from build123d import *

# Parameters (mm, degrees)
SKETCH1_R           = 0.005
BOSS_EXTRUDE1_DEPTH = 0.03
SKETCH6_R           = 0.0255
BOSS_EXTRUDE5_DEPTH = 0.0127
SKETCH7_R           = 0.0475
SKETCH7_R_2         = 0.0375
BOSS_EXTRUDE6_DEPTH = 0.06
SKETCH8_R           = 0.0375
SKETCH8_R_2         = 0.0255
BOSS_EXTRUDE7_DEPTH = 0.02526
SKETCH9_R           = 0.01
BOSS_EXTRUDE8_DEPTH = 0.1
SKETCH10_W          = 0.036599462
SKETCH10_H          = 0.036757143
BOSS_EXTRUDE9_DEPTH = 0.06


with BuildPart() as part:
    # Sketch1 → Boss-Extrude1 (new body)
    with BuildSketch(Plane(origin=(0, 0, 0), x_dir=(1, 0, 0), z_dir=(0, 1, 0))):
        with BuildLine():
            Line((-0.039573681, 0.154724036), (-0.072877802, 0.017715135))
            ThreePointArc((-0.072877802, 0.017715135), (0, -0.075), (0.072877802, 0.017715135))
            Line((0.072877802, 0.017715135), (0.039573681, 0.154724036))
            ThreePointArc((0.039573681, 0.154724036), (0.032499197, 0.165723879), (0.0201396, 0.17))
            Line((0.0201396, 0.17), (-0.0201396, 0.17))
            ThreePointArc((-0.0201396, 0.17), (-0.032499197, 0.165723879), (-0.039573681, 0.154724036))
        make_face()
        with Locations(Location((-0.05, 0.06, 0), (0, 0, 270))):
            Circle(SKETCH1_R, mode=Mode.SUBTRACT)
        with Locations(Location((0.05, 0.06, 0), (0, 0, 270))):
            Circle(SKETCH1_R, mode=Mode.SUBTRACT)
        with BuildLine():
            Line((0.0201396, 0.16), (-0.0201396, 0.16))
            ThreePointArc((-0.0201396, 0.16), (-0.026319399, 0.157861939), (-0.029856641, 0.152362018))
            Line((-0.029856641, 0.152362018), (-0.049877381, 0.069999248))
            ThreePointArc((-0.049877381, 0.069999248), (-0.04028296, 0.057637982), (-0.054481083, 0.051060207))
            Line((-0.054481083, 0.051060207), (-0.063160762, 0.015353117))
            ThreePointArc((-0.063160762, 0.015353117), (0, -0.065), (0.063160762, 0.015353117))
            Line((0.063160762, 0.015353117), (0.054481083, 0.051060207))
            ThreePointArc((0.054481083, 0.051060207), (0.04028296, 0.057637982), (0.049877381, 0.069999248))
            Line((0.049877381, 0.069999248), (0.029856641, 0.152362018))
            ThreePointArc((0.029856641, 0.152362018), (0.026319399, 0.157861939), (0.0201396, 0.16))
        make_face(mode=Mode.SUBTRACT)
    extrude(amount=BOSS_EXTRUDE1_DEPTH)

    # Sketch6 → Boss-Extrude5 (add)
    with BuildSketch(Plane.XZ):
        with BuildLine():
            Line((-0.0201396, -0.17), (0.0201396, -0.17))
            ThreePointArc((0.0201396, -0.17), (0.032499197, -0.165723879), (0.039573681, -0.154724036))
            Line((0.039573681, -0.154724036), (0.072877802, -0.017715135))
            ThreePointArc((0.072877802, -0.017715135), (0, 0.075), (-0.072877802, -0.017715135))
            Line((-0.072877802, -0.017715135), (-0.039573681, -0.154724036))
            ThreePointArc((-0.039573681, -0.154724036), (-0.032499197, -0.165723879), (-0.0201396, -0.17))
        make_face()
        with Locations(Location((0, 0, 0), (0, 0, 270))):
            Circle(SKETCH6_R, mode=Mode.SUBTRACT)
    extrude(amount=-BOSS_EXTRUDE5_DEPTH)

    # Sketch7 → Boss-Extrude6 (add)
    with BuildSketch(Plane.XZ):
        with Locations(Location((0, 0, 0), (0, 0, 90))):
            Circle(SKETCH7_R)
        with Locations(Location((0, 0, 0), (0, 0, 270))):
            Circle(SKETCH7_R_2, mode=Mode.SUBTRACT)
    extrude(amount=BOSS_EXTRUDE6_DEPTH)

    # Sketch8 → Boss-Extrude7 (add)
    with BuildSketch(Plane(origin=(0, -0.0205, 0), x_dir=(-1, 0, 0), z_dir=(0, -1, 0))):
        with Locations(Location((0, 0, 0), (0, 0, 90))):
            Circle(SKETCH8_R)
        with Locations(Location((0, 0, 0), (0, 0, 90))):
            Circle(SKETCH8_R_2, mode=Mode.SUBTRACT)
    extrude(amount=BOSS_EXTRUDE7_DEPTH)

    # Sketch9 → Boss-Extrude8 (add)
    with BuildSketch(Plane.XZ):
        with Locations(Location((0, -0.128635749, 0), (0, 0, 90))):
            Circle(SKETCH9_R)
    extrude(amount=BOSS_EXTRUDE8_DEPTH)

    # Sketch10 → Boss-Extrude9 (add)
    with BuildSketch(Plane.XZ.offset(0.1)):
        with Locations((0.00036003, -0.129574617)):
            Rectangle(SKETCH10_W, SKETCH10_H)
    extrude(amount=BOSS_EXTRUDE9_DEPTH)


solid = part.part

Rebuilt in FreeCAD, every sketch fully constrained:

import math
import FreeCAD as App
import Part
import Sketcher

V = App.Vector


def add_polygon(sketch, points):
    """Adds a closed chain of lines whose ends are joined by coincident constraints."""
    first, n = sketch.GeometryCount, len(points)
    for a, b in zip(points, points[1:] + points[:1]):
        sketch.addGeometry(Part.LineSegment(App.Vector(*a, 0), App.Vector(*b, 0)), False)
    for i in range(n):
        sketch.addConstraint(Sketcher.Constraint("Coincident", first + i, 2, first + (i + 1) % n, 1))

doc = App.newDocument("Part")
body = doc.addObject("PartDesign::Body", "Body")

# Sketch on XZ plane
sketch1 = body.newObject("Sketcher::SketchObject", "Sketch")
sketch1.AttachmentSupport = (doc.getObject("XZ_Plane"), [""])
sketch1.MapMode = "FlatFace"
sketch1.addGeometry(Part.LineSegment(V(-0.04, -0.155, 0), V(-0.073, -0.018, 0)), False)
sketch1.addGeometry(Part.ArcOfCircle(Part.Circle(V(0, 0, 0), V(0, 0, 1), 0.075), math.radians(-14), math.radians(194)), False)
sketch1.addGeometry(Part.LineSegment(V(0.073, -0.018, 0), V(0.04, -0.155, 0)), False)
sketch1.addGeometry(Part.ArcOfCircle(Part.Circle(V(0.02, -0.15, 0), V(0, 0, 1), 0.02), math.radians(-90), math.radians(-14)), False)
sketch1.addGeometry(Part.LineSegment(V(0.02, -0.17, 0), V(-0.02, -0.17, 0)), False)
sketch1.addGeometry(Part.ArcOfCircle(Part.Circle(V(-0.02, -0.15, 0), V(0, 0, 1), 0.02), math.radians(-166), math.radians(-90)), False)
sketch1.addGeometry(Part.Circle(V(-0.05, -0.06, 0), V(0, 0, 1), 0.005), False)
sketch1.addGeometry(Part.LineSegment(V(-0.02, -0.16, 0), V(0.02, -0.16, 0)), False)
sketch1.addGeometry(Part.ArcOfCircle(Part.Circle(V(0.02, -0.15, 0), V(0, 0, 1), 0.01), math.radians(-90), math.radians(-14)), False)
sketch1.addGeometry(Part.LineSegment(V(0.03, -0.152, 0), V(0.05, -0.07, 0)), False)
sketch1.addGeometry(Part.ArcOfCircle(Part.Circle(V(0.05, -0.06, 0), V(0, 0, 1), 0.01), math.radians(63), math.radians(269)), False)
sketch1.addGeometry(Part.LineSegment(V(0.054, -0.051, 0), V(0.063, -0.015, 0)), False)
sketch1.addGeometry(Part.ArcOfCircle(Part.Circle(V(0, 0, 0), V(0, 0, 1), 0.065), math.radians(-14), math.radians(194)), False)
sketch1.addGeometry(Part.LineSegment(V(-0.063, -0.015, 0), V(-0.054, -0.051, 0)), False)
sketch1.addGeometry(Part.ArcOfCircle(Part.Circle(V(-0.05, -0.06, 0), V(0, 0, 1), 0.01), math.radians(-89), math.radians(117)), False)
sketch1.addGeometry(Part.LineSegment(V(-0.05, -0.07, 0), V(-0.03, -0.152, 0)), False)
sketch1.addGeometry(Part.ArcOfCircle(Part.Circle(V(-0.02, -0.15, 0), V(0, 0, 1), 0.01), math.radians(-166), math.radians(-90)), False)
sketch1.addGeometry(Part.Circle(V(0.05, -0.06, 0), V(0, 0, 1), 0.005), False)
sketch1.addConstraint(Sketcher.Constraint("Tangent", 0, 2, 1, 2))
sketch1.addConstraint(Sketcher.Constraint("Tangent", 1, 1, 2, 1))
sketch1.addConstraint(Sketcher.Constraint("Tangent", 2, 2, 3, 2))
sketch1.addConstraint(Sketcher.Constraint("Tangent", 3, 1, 4, 1))
sketch1.addConstraint(Sketcher.Constraint("Tangent", 4, 2, 5, 2))
sketch1.addConstraint(Sketcher.Constraint("Tangent", 5, 1, 0, 1))
sketch1.addConstraint(Sketcher.Constraint("Tangent", 7, 2, 8, 1))
sketch1.addConstraint(Sketcher.Constraint("Tangent", 8, 2, 9, 1))
sketch1.addConstraint(Sketcher.Constraint("Coincident", 9, 2, 10, 2))
sketch1.addConstraint(Sketcher.Constraint("Coincident", 10, 1, 11, 1))
sketch1.addConstraint(Sketcher.Constraint("Tangent", 11, 2, 12, 1))
sketch1.addConstraint(Sketcher.Constraint("Tangent", 12, 2, 13, 1))
sketch1.addConstraint(Sketcher.Constraint("Coincident", 13, 2, 14, 2))
sketch1.addConstraint(Sketcher.Constraint("Coincident", 14, 1, 15, 1))
sketch1.addConstraint(Sketcher.Constraint("Tangent", 15, 2, 16, 1))
sketch1.addConstraint(Sketcher.Constraint("Tangent", 16, 2, 7, 1))
sketch1.addConstraint(Sketcher.Constraint("Horizontal", 4))
sketch1.addConstraint(Sketcher.Constraint("Horizontal", 7))
sketch1.addConstraint(Sketcher.Constraint("Coincident", 1, 3, -1, 1))
sketch1.addConstraint(Sketcher.Constraint("Coincident", 12, 3, -1, 1))
sketch1.addConstraint(Sketcher.Constraint("Coincident", 8, 3, 3, 3))
sketch1.addConstraint(Sketcher.Constraint("Coincident", 14, 3, 6, 3))
sketch1.addConstraint(Sketcher.Constraint("Coincident", 16, 3, 5, 3))
sketch1.addConstraint(Sketcher.Constraint("Coincident", 17, 3, 10, 3))
sketch1.addConstraint(Sketcher.Constraint("Equal", 3, 5))
sketch1.addConstraint(Sketcher.Constraint("Equal", 8, 10))
sketch1.addConstraint(Sketcher.Constraint("Equal", 10, 14))
sketch1.addConstraint(Sketcher.Constraint("Equal", 6, 17))
sketch1.addConstraint(Sketcher.Constraint("Symmetric", 6, 3, 10, 3, -2))
sketch1.addConstraint(Sketcher.Constraint("Parallel", 2, 9))
sketch1.addConstraint(Sketcher.Constraint("Parallel", 9, 11))
sketch1.addConstraint(Sketcher.Constraint("Parallel", 0, 13))
sketch1.addConstraint(Sketcher.Constraint("Parallel", 13, 15))
sketch1.addConstraint(Sketcher.Constraint("Horizontal", 0, 2, 1, 1))
sketch1.addConstraint(Sketcher.Constraint("Diameter", 6, 0.01))
sketch1.addConstraint(Sketcher.Constraint("Radius", 3, 0.02))
sketch1.addConstraint(Sketcher.Constraint("Radius", 8, 0.01))
sketch1.addConstraint(Sketcher.Constraint("Radius", 1, 0.075))
sketch1.addConstraint(Sketcher.Constraint("Radius", 12, 0.065))
sketch1.addConstraint(Sketcher.Constraint("DistanceX", 6, 3, 10, 3, 0.1))
sketch1.addConstraint(Sketcher.Constraint("DistanceY", 3, 3, -1, 1, 0.15))
sketch1.addConstraint(Sketcher.Constraint("DistanceY", 6, 3, -1, 1, 0.06))
sketch1.addConstraint(Sketcher.Constraint("DistanceX", 9, 2, 1, 1, 0.023))
pad1 = body.newObject("PartDesign::Pad", "Pad")
pad1.Profile = sketch1
pad1.Length = 0.03
pad1.Reversed = True

# Sketch on XZ plane
sketch2 = body.newObject("Sketcher::SketchObject", "Sketch001")
sketch2.AttachmentSupport = (doc.getObject("XZ_Plane"), [""])
sketch2.MapMode = "FlatFace"
sketch2.addGeometry(Part.LineSegment(V(-0.02, -0.17, 0), V(0.02, -0.17, 0)), False)
sketch2.addGeometry(Part.ArcOfCircle(Part.Circle(V(0.02, -0.15, 0), V(0, 0, 1), 0.02), math.radians(-90), math.radians(-14)), False)
sketch2.addGeometry(Part.LineSegment(V(0.04, -0.155, 0), V(0.073, -0.018, 0)), False)
sketch2.addGeometry(Part.ArcOfCircle(Part.Circle(V(0, 0, 0), V(0, 0, 1), 0.075), math.radians(-14), math.radians(194)), False)
sketch2.addGeometry(Part.LineSegment(V(-0.073, -0.018, 0), V(-0.04, -0.155, 0)), False)
sketch2.addGeometry(Part.ArcOfCircle(Part.Circle(V(-0.02, -0.15, 0), V(0, 0, 1), 0.02), math.radians(-166), math.radians(-90)), False)
sketch2.addGeometry(Part.Circle(V(0, 0, 0), V(0, 0, 1), 0.025), False)
sketch2.addConstraint(Sketcher.Constraint("Tangent", 0, 2, 1, 1))
sketch2.addConstraint(Sketcher.Constraint("Tangent", 1, 2, 2, 1))
sketch2.addConstraint(Sketcher.Constraint("Tangent", 2, 2, 3, 1))
sketch2.addConstraint(Sketcher.Constraint("Tangent", 3, 2, 4, 1))
sketch2.addConstraint(Sketcher.Constraint("Tangent", 4, 2, 5, 1))
sketch2.addConstraint(Sketcher.Constraint("Tangent", 5, 2, 0, 1))
sketch2.addConstraint(Sketcher.Constraint("Horizontal", 0))
sketch2.addConstraint(Sketcher.Constraint("Coincident", 3, 3, -1, 1))
sketch2.addConstraint(Sketcher.Constraint("Coincident", 6, 3, -1, 1))
sketch2.addConstraint(Sketcher.Constraint("Equal", 1, 5))
sketch2.addConstraint(Sketcher.Constraint("Horizontal", 2, 2, 3, 2))
sketch2.addConstraint(Sketcher.Constraint("Radius", 1, 0.02))
sketch2.addConstraint(Sketcher.Constraint("Diameter", 6, 0.051))
sketch2.addConstraint(Sketcher.Constraint("Radius", 3, 0.075))
sketch2.addConstraint(Sketcher.Constraint("DistanceY", 1, 3, -1, 1, 0.15))
sketch2.addConstraint(Sketcher.Constraint("Distance", 2, 0.140999))
pad2 = body.newObject("PartDesign::Pad", "Pad001")
pad2.Profile = sketch2
pad2.Length = 0.0127
pad2.Reversed = True

# Sketch on XZ plane
sketch3 = body.newObject("Sketcher::SketchObject", "Sketch002")
sketch3.AttachmentSupport = (doc.getObject("XZ_Plane"), [""])
sketch3.MapMode = "FlatFace"
sketch3.addGeometry(Part.Circle(V(0, 0, 0), V(0, 0, 1), 0.048), False)
sketch3.addGeometry(Part.Circle(V(0, 0, 0), V(0, 0, 1), 0.037), False)
sketch3.addConstraint(Sketcher.Constraint("Coincident", 0, 3, -1, 1))
sketch3.addConstraint(Sketcher.Constraint("Coincident", 1, 3, -1, 1))
sketch3.addConstraint(Sketcher.Constraint("Diameter", 0, 0.095))
sketch3.addConstraint(Sketcher.Constraint("Diameter", 1, 0.075))
pad3 = body.newObject("PartDesign::Pad", "Pad002")
pad3.Profile = sketch3
pad3.Length = 0.06

# Sketch on XZ plane
sketch4 = body.newObject("Sketcher::SketchObject", "Sketch003")
sketch4.AttachmentSupport = (doc.getObject("XZ_Plane"), [""])
sketch4.MapMode = "FlatFace"
sketch4.AttachmentOffset = App.Placement(V(0, 0, 0.0205), App.Rotation())
sketch4.addGeometry(Part.Circle(V(0, 0, 0), V(0, 0, 1), 0.037), False)
sketch4.addGeometry(Part.Circle(V(0, 0, 0), V(0, 0, 1), 0.025), False)
sketch4.addConstraint(Sketcher.Constraint("Coincident", 0, 3, -1, 1))
sketch4.addConstraint(Sketcher.Constraint("Coincident", 1, 3, -1, 1))
sketch4.addConstraint(Sketcher.Constraint("Diameter", 0, 0.075))
sketch4.addConstraint(Sketcher.Constraint("Diameter", 1, 0.051))
pad4 = body.newObject("PartDesign::Pad", "Pad003")
pad4.Profile = sketch4
pad4.Length = 0.02526

# Sketch on XZ plane
sketch5 = body.newObject("Sketcher::SketchObject", "Sketch004")
sketch5.AttachmentSupport = (doc.getObject("XZ_Plane"), [""])
sketch5.MapMode = "FlatFace"
sketch5.addGeometry(Part.Circle(V(0, -0.129, 0), V(0, 0, 1), 0.01), False)
sketch5.addConstraint(Sketcher.Constraint("PointOnObject", 0, 3, -2))
sketch5.addConstraint(Sketcher.Constraint("Diameter", 0, 0.02))
sketch5.addConstraint(Sketcher.Constraint("DistanceY", 0, 3, -1, 1, 0.128636))
pad5 = body.newObject("PartDesign::Pad", "Pad004")
pad5.Profile = sketch5
pad5.Length = 0.1

# Sketch on XZ plane
sketch6 = body.newObject("Sketcher::SketchObject", "Sketch005")
sketch6.AttachmentSupport = (doc.getObject("XZ_Plane"), [""])
sketch6.MapMode = "FlatFace"
sketch6.AttachmentOffset = App.Placement(V(0, 0, 0.1), App.Rotation())
add_polygon(sketch6, [(-0.018, -0.111), (-0.018, -0.148), (0.019, -0.148), (0.019, -0.111)])  # lines 0-3
sketch6.addConstraint(Sketcher.Constraint("Vertical", 0))
sketch6.addConstraint(Sketcher.Constraint("Horizontal", 1))
sketch6.addConstraint(Sketcher.Constraint("Vertical", 2))
sketch6.addConstraint(Sketcher.Constraint("Horizontal", 3))
sketch6.addConstraint(Sketcher.Constraint("DistanceX", 1, 1, 1, 2, 0.036599))
sketch6.addConstraint(Sketcher.Constraint("DistanceY", 0, 2, 0, 1, 0.036757))
sketch6.addConstraint(Sketcher.Constraint("DistanceX", 0, 2, -1, 1, 0.01794))
sketch6.addConstraint(Sketcher.Constraint("DistanceY", 0, 2, -1, 1, 0.147953))
pad6 = body.newObject("PartDesign::Pad", "Pad005")
pad6.Profile = sketch6
pad6.Length = 0.06

doc.recompute()
